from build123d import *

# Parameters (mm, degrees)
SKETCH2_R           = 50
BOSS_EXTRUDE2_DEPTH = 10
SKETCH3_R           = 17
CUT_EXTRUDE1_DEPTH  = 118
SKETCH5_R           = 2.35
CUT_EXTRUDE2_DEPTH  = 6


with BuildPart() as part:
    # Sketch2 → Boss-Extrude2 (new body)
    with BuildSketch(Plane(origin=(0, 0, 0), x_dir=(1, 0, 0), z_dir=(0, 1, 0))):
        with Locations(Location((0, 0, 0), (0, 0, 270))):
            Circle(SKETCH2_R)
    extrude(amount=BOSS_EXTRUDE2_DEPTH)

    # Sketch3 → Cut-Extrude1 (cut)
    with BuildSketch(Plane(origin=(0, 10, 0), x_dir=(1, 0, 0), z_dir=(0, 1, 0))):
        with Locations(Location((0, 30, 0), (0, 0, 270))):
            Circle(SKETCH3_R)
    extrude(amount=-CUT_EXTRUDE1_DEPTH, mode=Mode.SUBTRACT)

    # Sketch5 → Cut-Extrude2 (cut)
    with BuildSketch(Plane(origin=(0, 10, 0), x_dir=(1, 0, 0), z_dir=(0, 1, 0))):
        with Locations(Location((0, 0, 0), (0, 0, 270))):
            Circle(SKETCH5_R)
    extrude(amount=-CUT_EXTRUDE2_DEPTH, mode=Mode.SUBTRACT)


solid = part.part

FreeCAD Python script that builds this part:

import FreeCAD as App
import Part
import Sketcher

V = App.Vector
Q = App.Units.Quantity

doc = App.newDocument("Part")
body = doc.addObject("PartDesign::Body", "Body")

# Sketch on XZ plane
sketch1 = body.newObject("Sketcher::SketchObject", "Sketch")
sketch1.AttachmentSupport = (doc.getObject("XZ_Plane"), [""])
sketch1.MapMode = "FlatFace"
sketch1.addGeometry(Part.Circle(V(0, 0, 0), V(0, 0, 1), 50), False)
sketch1.addConstraint(Sketcher.Constraint("Coincident", 0, 3, -1, 1))
sketch1.addConstraint(Sketcher.Constraint("Diameter", 0, Q("100 mm")))
pad1 = body.newObject("PartDesign::Pad", "Pad")
pad1.Profile = sketch1
pad1.Length = 10
pad1.Reversed = True

# Sketch on XZ plane
sketch2 = body.newObject("Sketcher::SketchObject", "Sketch001")
sketch2.AttachmentSupport = (doc.getObject("XZ_Plane"), [""])
sketch2.MapMode = "FlatFace"
sketch2.AttachmentOffset = App.Placement(V(0, 0, -10), App.Rotation())
sketch2.addGeometry(Part.Circle(V(0, -30, 0), V(0, 0, 1), 17), False)
sketch2.addConstraint(Sketcher.Constraint("PointOnObject", 0, 3, -2))
sketch2.addConstraint(Sketcher.Constraint("Diameter", 0, Q("34 mm")))
sketch2.addConstraint(Sketcher.Constraint("DistanceY", 0, 3, -1, 1, Q("30 mm")))
pocket1 = body.newObject("PartDesign::Pocket", "Pocket")
pocket1.Profile = sketch2
pocket1.Length = 118
pocket1.Reversed = True

# Sketch on XZ plane
sketch3 = body.newObject("Sketcher::SketchObject", "Sketch002")
sketch3.AttachmentSupport = (doc.getObject("XZ_Plane"), [""])
sketch3.MapMode = "FlatFace"
sketch3.AttachmentOffset = App.Placement(V(0, 0, -10), App.Rotation())
sketch3.addGeometry(Part.Circle(V(0, 0, 0), V(0, 0, 1), 2.4), False)
sketch3.addConstraint(Sketcher.Constraint("Coincident", 0, 3, -1, 1))
sketch3.addConstraint(Sketcher.Constraint("Diameter", 0, Q("4.7 mm")))
pocket2 = body.newObject("PartDesign::Pocket", "Pocket001")
pocket2.Profile = sketch3
pocket2.Length = 6
pocket2.Reversed = True

doc.recompute()
